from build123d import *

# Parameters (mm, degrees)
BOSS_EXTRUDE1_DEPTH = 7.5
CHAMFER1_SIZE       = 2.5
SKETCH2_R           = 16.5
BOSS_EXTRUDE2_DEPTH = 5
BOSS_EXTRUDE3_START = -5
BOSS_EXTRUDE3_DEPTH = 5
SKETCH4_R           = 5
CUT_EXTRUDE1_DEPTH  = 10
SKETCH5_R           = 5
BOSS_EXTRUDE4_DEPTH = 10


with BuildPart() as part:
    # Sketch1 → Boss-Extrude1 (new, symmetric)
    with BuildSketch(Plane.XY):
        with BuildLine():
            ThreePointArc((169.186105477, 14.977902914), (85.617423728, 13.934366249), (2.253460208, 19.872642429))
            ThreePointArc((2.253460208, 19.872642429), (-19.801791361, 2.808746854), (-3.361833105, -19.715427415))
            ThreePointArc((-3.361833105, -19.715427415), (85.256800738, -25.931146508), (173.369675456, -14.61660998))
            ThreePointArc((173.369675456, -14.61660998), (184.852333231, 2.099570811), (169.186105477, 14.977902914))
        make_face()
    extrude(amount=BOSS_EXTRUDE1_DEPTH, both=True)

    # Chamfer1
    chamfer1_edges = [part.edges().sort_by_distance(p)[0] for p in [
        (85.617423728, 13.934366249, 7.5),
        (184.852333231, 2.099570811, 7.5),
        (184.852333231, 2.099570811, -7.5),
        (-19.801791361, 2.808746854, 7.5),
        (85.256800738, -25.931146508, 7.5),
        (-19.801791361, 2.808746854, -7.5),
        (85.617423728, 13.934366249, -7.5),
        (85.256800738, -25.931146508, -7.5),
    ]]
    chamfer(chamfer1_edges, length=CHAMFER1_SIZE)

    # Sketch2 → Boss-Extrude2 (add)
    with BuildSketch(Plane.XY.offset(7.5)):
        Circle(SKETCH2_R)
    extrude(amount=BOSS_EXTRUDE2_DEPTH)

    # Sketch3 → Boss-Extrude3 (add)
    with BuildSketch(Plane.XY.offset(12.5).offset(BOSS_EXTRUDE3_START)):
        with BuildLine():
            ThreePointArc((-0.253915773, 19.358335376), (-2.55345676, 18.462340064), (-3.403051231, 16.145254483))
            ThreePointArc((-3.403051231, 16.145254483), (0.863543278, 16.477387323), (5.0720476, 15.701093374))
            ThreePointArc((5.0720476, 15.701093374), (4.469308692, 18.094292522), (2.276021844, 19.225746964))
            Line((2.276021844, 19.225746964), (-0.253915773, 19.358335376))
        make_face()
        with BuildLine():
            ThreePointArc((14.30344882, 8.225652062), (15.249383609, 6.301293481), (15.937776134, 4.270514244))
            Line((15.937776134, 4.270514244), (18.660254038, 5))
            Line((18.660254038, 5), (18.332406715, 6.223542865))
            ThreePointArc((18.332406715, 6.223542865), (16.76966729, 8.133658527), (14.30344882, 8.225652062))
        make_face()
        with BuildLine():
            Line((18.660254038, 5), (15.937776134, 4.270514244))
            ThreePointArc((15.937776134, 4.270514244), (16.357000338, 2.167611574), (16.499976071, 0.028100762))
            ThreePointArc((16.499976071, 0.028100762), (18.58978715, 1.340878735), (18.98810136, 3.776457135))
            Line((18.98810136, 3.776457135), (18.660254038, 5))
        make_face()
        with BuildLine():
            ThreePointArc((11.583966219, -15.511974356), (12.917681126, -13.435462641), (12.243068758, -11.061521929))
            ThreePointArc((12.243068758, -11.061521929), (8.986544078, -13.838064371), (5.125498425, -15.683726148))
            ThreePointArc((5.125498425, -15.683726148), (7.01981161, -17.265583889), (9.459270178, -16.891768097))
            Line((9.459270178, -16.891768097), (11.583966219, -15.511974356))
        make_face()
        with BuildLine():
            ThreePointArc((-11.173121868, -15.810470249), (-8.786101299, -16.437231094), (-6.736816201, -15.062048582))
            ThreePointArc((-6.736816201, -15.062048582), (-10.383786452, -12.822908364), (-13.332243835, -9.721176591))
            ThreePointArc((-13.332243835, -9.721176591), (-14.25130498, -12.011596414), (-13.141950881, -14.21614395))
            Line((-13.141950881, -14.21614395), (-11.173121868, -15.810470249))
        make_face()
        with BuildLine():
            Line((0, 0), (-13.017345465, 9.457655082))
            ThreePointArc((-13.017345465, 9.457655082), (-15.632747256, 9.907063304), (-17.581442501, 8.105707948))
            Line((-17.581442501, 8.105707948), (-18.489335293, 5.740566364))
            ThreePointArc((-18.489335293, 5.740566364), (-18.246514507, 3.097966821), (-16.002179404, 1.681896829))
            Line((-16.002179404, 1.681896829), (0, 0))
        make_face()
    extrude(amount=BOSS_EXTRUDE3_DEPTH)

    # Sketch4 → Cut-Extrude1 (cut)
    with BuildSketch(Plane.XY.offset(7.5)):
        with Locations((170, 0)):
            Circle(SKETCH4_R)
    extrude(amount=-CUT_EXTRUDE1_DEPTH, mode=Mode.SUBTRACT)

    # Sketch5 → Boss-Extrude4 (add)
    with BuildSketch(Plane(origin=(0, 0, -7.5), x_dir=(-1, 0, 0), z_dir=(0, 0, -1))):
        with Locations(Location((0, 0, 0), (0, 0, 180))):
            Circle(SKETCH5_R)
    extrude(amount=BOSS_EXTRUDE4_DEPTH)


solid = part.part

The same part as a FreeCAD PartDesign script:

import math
import FreeCAD as App
import Part
import Sketcher
Q = App.Units.Quantity


def edges_at(feature, points):
    """Names of the edges that pass closest to the given points."""
    edges = feature.Shape.Edges
    near = lambda p: min(range(len(edges)), key=lambda i: edges[i].distToShape(Part.Vertex(*p))[0])
    return sorted({f"Edge{near(p) + 1}" for p in points})

doc = App.newDocument("Part")
params = doc.addObject("Spreadsheet::Sheet", "Params")
for row, (alias, value) in enumerate([
    ("sketch1_radius", "1000 mm"),
    ("sketch1_radius2", "20 mm"),
    ("sketch1_radius3", "450 mm"),
    ("sketch1_radius4", "15 mm"),
    ("pad1_length", "15 mm"),
    ("chamfer_size", "2.5 mm"),
    ("sketch2_diameter", "33 mm"),
    ("pad2_length", "5 mm"),
    ("sketch3_radius", "3 mm"),
    ("sketch3_radius2", "16.5 mm"),
    ("pad3_length", "5 mm"),
    ("sketch4_diameter", "10 mm"),
    ("pocket1_length", "10 mm"),
    ("sketch5_diameter", "10 mm"),
    ("pad4_length", "10 mm"),
], start=1):
    params.set(f"A{row}", alias)
    params.set(f"B{row}", "=" + value)
    params.setAlias(f"B{row}", alias)

body = doc.addObject("PartDesign::Body", "Body")

sketch1 = doc.addObject("Sketcher::SketchObject", "Sketch")
body.addObject(sketch1)
sketch1.AttachmentSupport = (doc.XY_Plane, [""])
sketch1.MapMode = "FlatFace"
sketch1.addGeometry([
    Part.ArcOfCircle(Part.Circle(App.Vector(115, 1014, 0), App.Vector(0, 0, 1), 1000), math.radians(-96.47), math.radians(-86.89)),
    Part.ArcOfCircle(Part.Circle(App.Vector(0, 0, 0), App.Vector(0, 0, 1), 20), math.radians(84), math.radians(260)),
    Part.ArcOfCircle(Part.Circle(App.Vector(72, 424, 0), App.Vector(0, 0, 1), 450), math.radians(-100), math.radians(-77)),
    Part.ArcOfCircle(Part.Circle(App.Vector(170, 0, 0), App.Vector(0, 0, 1), 15), math.radians(-77), math.radians(93)),
], False)
sketch1.addConstraint([
    Sketcher.Constraint("Tangent", 0, 1, 1, 1),
    Sketcher.Constraint("Tangent", 1, 2, 2, 1),
    Sketcher.Constraint("Tangent", 2, 2, 3, 1),
    Sketcher.Constraint("Tangent", 3, 2, 0, 2),
    Sketcher.Constraint("Coincident", 1, 3, -1, 1),
    Sketcher.Constraint("PointOnObject", 3, 3, -1),
    Sketcher.Constraint("Radius", 0, Q("1000 mm")),
    Sketcher.Constraint("Radius", 1, Q("20 mm")),
    Sketcher.Constraint("Radius", 2, Q("450 mm")),
    Sketcher.Constraint("Radius", 3, Q("15 mm")),
    Sketcher.Constraint("DistanceX", -1, 1, 3, 3, Q("170 mm")),
])
sketch1.setExpression("Constraints[6]", "Params.sketch1_radius")
sketch1.setExpression("Constraints[7]", "Params.sketch1_radius2")
sketch1.setExpression("Constraints[8]", "Params.sketch1_radius3")
sketch1.setExpression("Constraints[9]", "Params.sketch1_radius4")
pad1 = doc.addObject("PartDesign::Pad", "Pad")
body.addObject(pad1)
pad1.Profile = sketch1
pad1.setExpression("Length", "Params.pad1_length")
pad1.Midplane = True
doc.recompute()

chamfer = doc.addObject("PartDesign::Chamfer", "Chamfer")
body.addObject(chamfer)
chamfer.Base = (pad1, edges_at(pad1, [
    (85.617, 13.934, 7.5),
    (184.852, 2.1, 7.5),
    (184.852, 2.1, -7.5),
    (-19.802, 2.809, 7.5),
    (85.257, -25.931, 7.5),
    (-19.802, 2.809, -7.5),
    (85.617, 13.934, -7.5),
    (85.257, -25.931, -7.5),
]))
chamfer.setExpression("Size", "Params.chamfer_size")

sketch2 = doc.addObject("Sketcher::SketchObject", "Sketch001")
body.addObject(sketch2)
sketch2.AttachmentSupport = (doc.XY_Plane, [""])
sketch2.MapMode = "FlatFace"
sketch2.AttachmentOffset = App.Placement(App.Vector(0, 0, 7.5), App.Rotation())
sketch2.addGeometry(Part.Circle(App.Vector(0, 0, 0), App.Vector(0, 0, 1), 16), False)
sketch2.addConstraint([
    Sketcher.Constraint("Coincident", 0, 3, -1, 1),
    Sketcher.Constraint("Diameter", 0, Q("33 mm")),
])
sketch2.setExpression("Constraints[1]", "Params.sketch2_diameter")
pad2 = doc.addObject("PartDesign::Pad", "Pad001")
body.addObject(pad2)
pad2.Profile = sketch2
pad2.setExpression("Length", "Params.pad2_length")

sketch3 = doc.addObject("Sketcher::SketchObject", "Sketch002")
body.addObject(sketch3)
sketch3.AttachmentSupport = (doc.XY_Plane, [""])
sketch3.MapMode = "FlatFace"
sketch3.AttachmentOffset = App.Placement(App.Vector(0, 0, 7.5), App.Rotation())
sketch3.addGeometry([
    Part.ArcOfCircle(Part.Circle(App.Vector(-0.4, 16.4, 0), App.Vector(0, 0, 1), 3), math.radians(87), math.radians(184)),
    Part.ArcOfCircle(Part.Circle(App.Vector(0, 0, 0), App.Vector(0, 0, 1), 16.5), math.radians(72), math.radians(102)),
    Part.ArcOfCircle(Part.Circle(App.Vector(2.1, 16.2, 0), App.Vector(0, 0, 1), 3), math.radians(-10), math.radians(87)),
    Part.LineSegment(App.Vector(2.3, 19.2, 0), App.Vector(-0.3, 19.4, 0)),
    Part.ArcOfCircle(Part.Circle(App.Vector(0, 0, 0), App.Vector(0, 0, 1), 16.5), math.radians(15), math.radians(29.9)),
    Part.ArcOfCircle(Part.Circle(App.Vector(0, 0, 0), App.Vector(0, 0, 1), 16.5), math.radians(0.1), math.radians(15)),
    Part.ArcOfCircle(Part.Circle(App.Vector(16.1, 3, 0), App.Vector(0, 0, 1), 3), math.radians(-82), math.radians(15)),
    Part.LineSegment(App.Vector(19, 3.8, 0), App.Vector(18.7, 5, 0)),
    Part.LineSegment(App.Vector(18.7, 5, 0), App.Vector(18.3, 6.2, 0)),
    Part.ArcOfCircle(Part.Circle(App.Vector(15.4, 5.4, 0), App.Vector(0, 0, 1), 3), math.radians(15), math.radians(112)),
    Part.ArcOfCircle(Part.Circle(App.Vector(10, -13, 0), App.Vector(0, 0, 1), 3), math.radians(-57), math.radians(40)),
    Part.ArcOfCircle(Part.Circle(App.Vector(0, 0, 0), App.Vector(0, 0, 1), 16.5), math.radians(-72), math.radians(-42)),
    Part.ArcOfCircle(Part.Circle(App.Vector(7.8, -14.4, 0), App.Vector(0, 0, 1), 3), math.radians(-154), math.radians(-57)),
    Part.LineSegment(App.Vector(9.5, -16.9, 0), App.Vector(11.6, -15.5, 0)),
    Part.ArcOfCircle(Part.Circle(App.Vector(-9.3, -13.5, 0), App.Vector(0, 0, 1), 3), math.radians(-129), math.radians(-32)),
    Part.ArcOfCircle(Part.Circle(App.Vector(0, 0, 0), App.Vector(0, 0, 1), 16.5), math.radians(-144), math.radians(-114)),
    Part.ArcOfCircle(Part.Circle(App.Vector(-11.3, -11.9, 0), App.Vector(0, 0, 1), 3), math.radians(134), math.radians(231)),
    Part.LineSegment(App.Vector(-13.1, -14.2, 0), App.Vector(-11.2, -15.8, 0)),
    Part.LineSegment(App.Vector(0, 0, 0), App.Vector(-13, 9.5, 0)),
    Part.ArcOfCircle(Part.Circle(App.Vector(-14.8, 7, 0), App.Vector(0, 0, 1), 3), math.radians(54), math.radians(159)),
    Part.LineSegment(App.Vector(-17.6, 8.1, 0), App.Vector(-18.5, 5.7, 0)),
    Part.ArcOfCircle(Part.Circle(App.Vector(-15.7, 4.7, 0), App.Vector(0, 0, 1), 3), math.radians(159), math.radians(264)),
    Part.LineSegment(App.Vector(-16, 1.7, 0), App.Vector(0, 0, 0)),
], False)
sketch3.addConstraint([
    Sketcher.Constraint("Coincident", 0, 2, 1, 2),
    Sketcher.Constraint("Coincident", 1, 1, 2, 1),
    Sketcher.Constraint("Tangent", 2, 2, 3, 1),
    Sketcher.Constraint("Tangent", 3, 2, 0, 1),
    Sketcher.Constraint("Tangent", 4, 1, 5, 2),
    Sketcher.Constraint("Coincident", 5, 1, 6, 1),
    Sketcher.Constraint("Tangent", 6, 2, 7, 1),
    Sketcher.Constraint("Coincident", 7, 2, 8, 1),
    Sketcher.Constraint("Tangent", 8, 2, 9, 1),
    Sketcher.Constraint("Coincident", 9, 2, 4, 2),
    Sketcher.Constraint("Coincident", 10, 2, 11, 2),
    Sketcher.Constraint("Coincident", 11, 1, 12, 1),
    Sketcher.Constraint("Tangent", 12, 2, 13, 1),
    Sketcher.Constraint("Tangent", 13, 2, 10, 1),
    Sketcher.Constraint("Coincident", 14, 2, 15, 2),
    Sketcher.Constraint("Coincident", 15, 1, 16, 1),
    Sketcher.Constraint("Tangent", 16, 2, 17, 1),
    Sketcher.Constraint("Tangent", 17, 2, 14, 1),
    Sketcher.Constraint("Tangent", 18, 2, 19, 1),
    Sketcher.Constraint("Tangent", 19, 2, 20, 1),
    Sketcher.Constraint("Tangent", 20, 2, 21, 1),
    Sketcher.Constraint("Tangent", 21, 2, 22, 1),
    Sketcher.Constraint("Coincident", 22, 2, 18, 1),
    Sketcher.Constraint("Coincident", 1, 3, -1, 1),
    Sketcher.Constraint("Coincident", 4, 3, -1, 1),
    Sketcher.Constraint("Coincident", 11, 3, -1, 1),
    Sketcher.Constraint("Coincident", 15, 3, -1, 1),
    Sketcher.Constraint("Coincident", 22, 2, -1, 1),
    Sketcher.Constraint("Equal", 0, 2),
    Sketcher.Constraint("Equal", 1, 4),
    Sketcher.Constraint("Equal", 4, 5),
    Sketcher.Constraint("Equal", 2, 6),
    Sketcher.Constraint("Equal", 6, 9),
    Sketcher.Constraint("Equal", 9, 10),
    Sketcher.Constraint("Equal", 5, 11),
    Sketcher.Constraint("Equal", 10, 12),
    Sketcher.Constraint("Equal", 12, 14),
    Sketcher.Constraint("Equal", 11, 15),
    Sketcher.Constraint("Equal", 14, 16),
    Sketcher.Constraint("Equal", 16, 19),
    Sketcher.Constraint("Equal", 19, 21),
    Sketcher.Constraint("Parallel", 7, 8),
    Sketcher.Constraint("Equal", 7, 8),
    Sketcher.Constraint("Equal", 3, 13),
    Sketcher.Constraint("Equal", 13, 17),
    Sketcher.Constraint("Equal", 17, 20),
    Sketcher.Constraint("Equal", 18, 22),
    Sketcher.Constraint("Radius", 0, Q("3 mm")),
    Sketcher.Constraint("Radius", 1, Q("16.5 mm")),
    Sketcher.Constraint("Angle", 3, Q("177 deg")),
    Sketcher.Constraint("Angle", 7, Q("105 deg")),
    Sketcher.Constraint("Angle", 13, Q("33 deg")),
    Sketcher.Constraint("Angle", 17, Q("-39 deg")),
    Sketcher.Constraint("Angle", 18, Q("144 deg")),
    Sketcher.Constraint("Angle", 20, Q("-111 deg")),
    Sketcher.Constraint("DistanceY", -1, 1, 6, 3, Q("3 mm")),
    Sketcher.Constraint("DistanceY", -1, 1, 7, 2, Q("5 mm")),
    Sketcher.Constraint("DistanceX", 19, 3, -1, 1, Q("14.780701 mm")),
    Sketcher.Constraint("DistanceY", -1, 1, 5, 1, Q("0.028101 mm")),
    Sketcher.Constraint("DistanceX", -1, 1, 11, 1, Q("5.125498 mm")),
    Sketcher.Constraint("DistanceX", 0, 2, 1, 1, Q("8.475099 mm")),
    Sketcher.Constraint("DistanceX", 4, 1, 5, 1, Q("0.5622 mm")),
    Sketcher.Constraint("DistanceX", 12, 2, 10, 2, Q("2.783799 mm")),
    Sketcher.Constraint("DistanceY", 18, 2, 0, 2, Q("6.687599 mm")),
    Sketcher.Constraint("DistanceX", 19, 2, 15, 1, Q("4.249199 mm")),
    Sketcher.Constraint("DistanceX", 14, 3, -1, 1, Q("9.285161 mm")),
])
sketch3.setExpression("Constraints[47]", "Params.sketch3_radius")
sketch3.setExpression("Constraints[48]", "Params.sketch3_radius2")
pad3 = doc.addObject("PartDesign::Pad", "Pad002")
body.addObject(pad3)
pad3.Profile = sketch3
pad3.setExpression("Length", "Params.pad3_length")

sketch4 = doc.addObject("Sketcher::SketchObject", "Sketch003")
body.addObject(sketch4)
sketch4.AttachmentSupport = (doc.XY_Plane, [""])
sketch4.MapMode = "FlatFace"
sketch4.AttachmentOffset = App.Placement(App.Vector(0, 0, 7.5), App.Rotation())
sketch4.addGeometry(Part.Circle(App.Vector(170, 0, 0), App.Vector(0, 0, 1), 5), False)
sketch4.addConstraint([
    Sketcher.Constraint("PointOnObject", 0, 3, -1),
    Sketcher.Constraint("Diameter", 0, Q("10 mm")),
    Sketcher.Constraint("DistanceX", -1, 1, 0, 3, Q("170 mm")),
])
sketch4.setExpression("Constraints[1]", "Params.sketch4_diameter")
pocket1 = doc.addObject("PartDesign::Pocket", "Pocket")
body.addObject(pocket1)
pocket1.Profile = sketch4
pocket1.setExpression("Length", "Params.pocket1_length")

sketch5 = doc.addObject("Sketcher::SketchObject", "Sketch004")
body.addObject(sketch5)
sketch5.AttachmentSupport = (doc.XY_Plane, [""])
sketch5.MapMode = "FlatFace"
sketch5.AttachmentOffset = App.Placement(App.Vector(0, 0, -7.5), App.Rotation())
sketch5.addGeometry(Part.Circle(App.Vector(0, 0, 0), App.Vector(0, 0, 1), 5), False)
sketch5.addConstraint([
    Sketcher.Constraint("Coincident", 0, 3, -1, 1),
    Sketcher.Constraint("Diameter", 0, Q("10 mm")),
])
sketch5.setExpression("Constraints[1]", "Params.sketch5_diameter")
pad4 = doc.addObject("PartDesign::Pad", "Pad003")
body.addObject(pad4)
pad4.Profile = sketch5
pad4.setExpression("Length", "Params.pad4_length")
pad4.Reversed = True

doc.recompute()
